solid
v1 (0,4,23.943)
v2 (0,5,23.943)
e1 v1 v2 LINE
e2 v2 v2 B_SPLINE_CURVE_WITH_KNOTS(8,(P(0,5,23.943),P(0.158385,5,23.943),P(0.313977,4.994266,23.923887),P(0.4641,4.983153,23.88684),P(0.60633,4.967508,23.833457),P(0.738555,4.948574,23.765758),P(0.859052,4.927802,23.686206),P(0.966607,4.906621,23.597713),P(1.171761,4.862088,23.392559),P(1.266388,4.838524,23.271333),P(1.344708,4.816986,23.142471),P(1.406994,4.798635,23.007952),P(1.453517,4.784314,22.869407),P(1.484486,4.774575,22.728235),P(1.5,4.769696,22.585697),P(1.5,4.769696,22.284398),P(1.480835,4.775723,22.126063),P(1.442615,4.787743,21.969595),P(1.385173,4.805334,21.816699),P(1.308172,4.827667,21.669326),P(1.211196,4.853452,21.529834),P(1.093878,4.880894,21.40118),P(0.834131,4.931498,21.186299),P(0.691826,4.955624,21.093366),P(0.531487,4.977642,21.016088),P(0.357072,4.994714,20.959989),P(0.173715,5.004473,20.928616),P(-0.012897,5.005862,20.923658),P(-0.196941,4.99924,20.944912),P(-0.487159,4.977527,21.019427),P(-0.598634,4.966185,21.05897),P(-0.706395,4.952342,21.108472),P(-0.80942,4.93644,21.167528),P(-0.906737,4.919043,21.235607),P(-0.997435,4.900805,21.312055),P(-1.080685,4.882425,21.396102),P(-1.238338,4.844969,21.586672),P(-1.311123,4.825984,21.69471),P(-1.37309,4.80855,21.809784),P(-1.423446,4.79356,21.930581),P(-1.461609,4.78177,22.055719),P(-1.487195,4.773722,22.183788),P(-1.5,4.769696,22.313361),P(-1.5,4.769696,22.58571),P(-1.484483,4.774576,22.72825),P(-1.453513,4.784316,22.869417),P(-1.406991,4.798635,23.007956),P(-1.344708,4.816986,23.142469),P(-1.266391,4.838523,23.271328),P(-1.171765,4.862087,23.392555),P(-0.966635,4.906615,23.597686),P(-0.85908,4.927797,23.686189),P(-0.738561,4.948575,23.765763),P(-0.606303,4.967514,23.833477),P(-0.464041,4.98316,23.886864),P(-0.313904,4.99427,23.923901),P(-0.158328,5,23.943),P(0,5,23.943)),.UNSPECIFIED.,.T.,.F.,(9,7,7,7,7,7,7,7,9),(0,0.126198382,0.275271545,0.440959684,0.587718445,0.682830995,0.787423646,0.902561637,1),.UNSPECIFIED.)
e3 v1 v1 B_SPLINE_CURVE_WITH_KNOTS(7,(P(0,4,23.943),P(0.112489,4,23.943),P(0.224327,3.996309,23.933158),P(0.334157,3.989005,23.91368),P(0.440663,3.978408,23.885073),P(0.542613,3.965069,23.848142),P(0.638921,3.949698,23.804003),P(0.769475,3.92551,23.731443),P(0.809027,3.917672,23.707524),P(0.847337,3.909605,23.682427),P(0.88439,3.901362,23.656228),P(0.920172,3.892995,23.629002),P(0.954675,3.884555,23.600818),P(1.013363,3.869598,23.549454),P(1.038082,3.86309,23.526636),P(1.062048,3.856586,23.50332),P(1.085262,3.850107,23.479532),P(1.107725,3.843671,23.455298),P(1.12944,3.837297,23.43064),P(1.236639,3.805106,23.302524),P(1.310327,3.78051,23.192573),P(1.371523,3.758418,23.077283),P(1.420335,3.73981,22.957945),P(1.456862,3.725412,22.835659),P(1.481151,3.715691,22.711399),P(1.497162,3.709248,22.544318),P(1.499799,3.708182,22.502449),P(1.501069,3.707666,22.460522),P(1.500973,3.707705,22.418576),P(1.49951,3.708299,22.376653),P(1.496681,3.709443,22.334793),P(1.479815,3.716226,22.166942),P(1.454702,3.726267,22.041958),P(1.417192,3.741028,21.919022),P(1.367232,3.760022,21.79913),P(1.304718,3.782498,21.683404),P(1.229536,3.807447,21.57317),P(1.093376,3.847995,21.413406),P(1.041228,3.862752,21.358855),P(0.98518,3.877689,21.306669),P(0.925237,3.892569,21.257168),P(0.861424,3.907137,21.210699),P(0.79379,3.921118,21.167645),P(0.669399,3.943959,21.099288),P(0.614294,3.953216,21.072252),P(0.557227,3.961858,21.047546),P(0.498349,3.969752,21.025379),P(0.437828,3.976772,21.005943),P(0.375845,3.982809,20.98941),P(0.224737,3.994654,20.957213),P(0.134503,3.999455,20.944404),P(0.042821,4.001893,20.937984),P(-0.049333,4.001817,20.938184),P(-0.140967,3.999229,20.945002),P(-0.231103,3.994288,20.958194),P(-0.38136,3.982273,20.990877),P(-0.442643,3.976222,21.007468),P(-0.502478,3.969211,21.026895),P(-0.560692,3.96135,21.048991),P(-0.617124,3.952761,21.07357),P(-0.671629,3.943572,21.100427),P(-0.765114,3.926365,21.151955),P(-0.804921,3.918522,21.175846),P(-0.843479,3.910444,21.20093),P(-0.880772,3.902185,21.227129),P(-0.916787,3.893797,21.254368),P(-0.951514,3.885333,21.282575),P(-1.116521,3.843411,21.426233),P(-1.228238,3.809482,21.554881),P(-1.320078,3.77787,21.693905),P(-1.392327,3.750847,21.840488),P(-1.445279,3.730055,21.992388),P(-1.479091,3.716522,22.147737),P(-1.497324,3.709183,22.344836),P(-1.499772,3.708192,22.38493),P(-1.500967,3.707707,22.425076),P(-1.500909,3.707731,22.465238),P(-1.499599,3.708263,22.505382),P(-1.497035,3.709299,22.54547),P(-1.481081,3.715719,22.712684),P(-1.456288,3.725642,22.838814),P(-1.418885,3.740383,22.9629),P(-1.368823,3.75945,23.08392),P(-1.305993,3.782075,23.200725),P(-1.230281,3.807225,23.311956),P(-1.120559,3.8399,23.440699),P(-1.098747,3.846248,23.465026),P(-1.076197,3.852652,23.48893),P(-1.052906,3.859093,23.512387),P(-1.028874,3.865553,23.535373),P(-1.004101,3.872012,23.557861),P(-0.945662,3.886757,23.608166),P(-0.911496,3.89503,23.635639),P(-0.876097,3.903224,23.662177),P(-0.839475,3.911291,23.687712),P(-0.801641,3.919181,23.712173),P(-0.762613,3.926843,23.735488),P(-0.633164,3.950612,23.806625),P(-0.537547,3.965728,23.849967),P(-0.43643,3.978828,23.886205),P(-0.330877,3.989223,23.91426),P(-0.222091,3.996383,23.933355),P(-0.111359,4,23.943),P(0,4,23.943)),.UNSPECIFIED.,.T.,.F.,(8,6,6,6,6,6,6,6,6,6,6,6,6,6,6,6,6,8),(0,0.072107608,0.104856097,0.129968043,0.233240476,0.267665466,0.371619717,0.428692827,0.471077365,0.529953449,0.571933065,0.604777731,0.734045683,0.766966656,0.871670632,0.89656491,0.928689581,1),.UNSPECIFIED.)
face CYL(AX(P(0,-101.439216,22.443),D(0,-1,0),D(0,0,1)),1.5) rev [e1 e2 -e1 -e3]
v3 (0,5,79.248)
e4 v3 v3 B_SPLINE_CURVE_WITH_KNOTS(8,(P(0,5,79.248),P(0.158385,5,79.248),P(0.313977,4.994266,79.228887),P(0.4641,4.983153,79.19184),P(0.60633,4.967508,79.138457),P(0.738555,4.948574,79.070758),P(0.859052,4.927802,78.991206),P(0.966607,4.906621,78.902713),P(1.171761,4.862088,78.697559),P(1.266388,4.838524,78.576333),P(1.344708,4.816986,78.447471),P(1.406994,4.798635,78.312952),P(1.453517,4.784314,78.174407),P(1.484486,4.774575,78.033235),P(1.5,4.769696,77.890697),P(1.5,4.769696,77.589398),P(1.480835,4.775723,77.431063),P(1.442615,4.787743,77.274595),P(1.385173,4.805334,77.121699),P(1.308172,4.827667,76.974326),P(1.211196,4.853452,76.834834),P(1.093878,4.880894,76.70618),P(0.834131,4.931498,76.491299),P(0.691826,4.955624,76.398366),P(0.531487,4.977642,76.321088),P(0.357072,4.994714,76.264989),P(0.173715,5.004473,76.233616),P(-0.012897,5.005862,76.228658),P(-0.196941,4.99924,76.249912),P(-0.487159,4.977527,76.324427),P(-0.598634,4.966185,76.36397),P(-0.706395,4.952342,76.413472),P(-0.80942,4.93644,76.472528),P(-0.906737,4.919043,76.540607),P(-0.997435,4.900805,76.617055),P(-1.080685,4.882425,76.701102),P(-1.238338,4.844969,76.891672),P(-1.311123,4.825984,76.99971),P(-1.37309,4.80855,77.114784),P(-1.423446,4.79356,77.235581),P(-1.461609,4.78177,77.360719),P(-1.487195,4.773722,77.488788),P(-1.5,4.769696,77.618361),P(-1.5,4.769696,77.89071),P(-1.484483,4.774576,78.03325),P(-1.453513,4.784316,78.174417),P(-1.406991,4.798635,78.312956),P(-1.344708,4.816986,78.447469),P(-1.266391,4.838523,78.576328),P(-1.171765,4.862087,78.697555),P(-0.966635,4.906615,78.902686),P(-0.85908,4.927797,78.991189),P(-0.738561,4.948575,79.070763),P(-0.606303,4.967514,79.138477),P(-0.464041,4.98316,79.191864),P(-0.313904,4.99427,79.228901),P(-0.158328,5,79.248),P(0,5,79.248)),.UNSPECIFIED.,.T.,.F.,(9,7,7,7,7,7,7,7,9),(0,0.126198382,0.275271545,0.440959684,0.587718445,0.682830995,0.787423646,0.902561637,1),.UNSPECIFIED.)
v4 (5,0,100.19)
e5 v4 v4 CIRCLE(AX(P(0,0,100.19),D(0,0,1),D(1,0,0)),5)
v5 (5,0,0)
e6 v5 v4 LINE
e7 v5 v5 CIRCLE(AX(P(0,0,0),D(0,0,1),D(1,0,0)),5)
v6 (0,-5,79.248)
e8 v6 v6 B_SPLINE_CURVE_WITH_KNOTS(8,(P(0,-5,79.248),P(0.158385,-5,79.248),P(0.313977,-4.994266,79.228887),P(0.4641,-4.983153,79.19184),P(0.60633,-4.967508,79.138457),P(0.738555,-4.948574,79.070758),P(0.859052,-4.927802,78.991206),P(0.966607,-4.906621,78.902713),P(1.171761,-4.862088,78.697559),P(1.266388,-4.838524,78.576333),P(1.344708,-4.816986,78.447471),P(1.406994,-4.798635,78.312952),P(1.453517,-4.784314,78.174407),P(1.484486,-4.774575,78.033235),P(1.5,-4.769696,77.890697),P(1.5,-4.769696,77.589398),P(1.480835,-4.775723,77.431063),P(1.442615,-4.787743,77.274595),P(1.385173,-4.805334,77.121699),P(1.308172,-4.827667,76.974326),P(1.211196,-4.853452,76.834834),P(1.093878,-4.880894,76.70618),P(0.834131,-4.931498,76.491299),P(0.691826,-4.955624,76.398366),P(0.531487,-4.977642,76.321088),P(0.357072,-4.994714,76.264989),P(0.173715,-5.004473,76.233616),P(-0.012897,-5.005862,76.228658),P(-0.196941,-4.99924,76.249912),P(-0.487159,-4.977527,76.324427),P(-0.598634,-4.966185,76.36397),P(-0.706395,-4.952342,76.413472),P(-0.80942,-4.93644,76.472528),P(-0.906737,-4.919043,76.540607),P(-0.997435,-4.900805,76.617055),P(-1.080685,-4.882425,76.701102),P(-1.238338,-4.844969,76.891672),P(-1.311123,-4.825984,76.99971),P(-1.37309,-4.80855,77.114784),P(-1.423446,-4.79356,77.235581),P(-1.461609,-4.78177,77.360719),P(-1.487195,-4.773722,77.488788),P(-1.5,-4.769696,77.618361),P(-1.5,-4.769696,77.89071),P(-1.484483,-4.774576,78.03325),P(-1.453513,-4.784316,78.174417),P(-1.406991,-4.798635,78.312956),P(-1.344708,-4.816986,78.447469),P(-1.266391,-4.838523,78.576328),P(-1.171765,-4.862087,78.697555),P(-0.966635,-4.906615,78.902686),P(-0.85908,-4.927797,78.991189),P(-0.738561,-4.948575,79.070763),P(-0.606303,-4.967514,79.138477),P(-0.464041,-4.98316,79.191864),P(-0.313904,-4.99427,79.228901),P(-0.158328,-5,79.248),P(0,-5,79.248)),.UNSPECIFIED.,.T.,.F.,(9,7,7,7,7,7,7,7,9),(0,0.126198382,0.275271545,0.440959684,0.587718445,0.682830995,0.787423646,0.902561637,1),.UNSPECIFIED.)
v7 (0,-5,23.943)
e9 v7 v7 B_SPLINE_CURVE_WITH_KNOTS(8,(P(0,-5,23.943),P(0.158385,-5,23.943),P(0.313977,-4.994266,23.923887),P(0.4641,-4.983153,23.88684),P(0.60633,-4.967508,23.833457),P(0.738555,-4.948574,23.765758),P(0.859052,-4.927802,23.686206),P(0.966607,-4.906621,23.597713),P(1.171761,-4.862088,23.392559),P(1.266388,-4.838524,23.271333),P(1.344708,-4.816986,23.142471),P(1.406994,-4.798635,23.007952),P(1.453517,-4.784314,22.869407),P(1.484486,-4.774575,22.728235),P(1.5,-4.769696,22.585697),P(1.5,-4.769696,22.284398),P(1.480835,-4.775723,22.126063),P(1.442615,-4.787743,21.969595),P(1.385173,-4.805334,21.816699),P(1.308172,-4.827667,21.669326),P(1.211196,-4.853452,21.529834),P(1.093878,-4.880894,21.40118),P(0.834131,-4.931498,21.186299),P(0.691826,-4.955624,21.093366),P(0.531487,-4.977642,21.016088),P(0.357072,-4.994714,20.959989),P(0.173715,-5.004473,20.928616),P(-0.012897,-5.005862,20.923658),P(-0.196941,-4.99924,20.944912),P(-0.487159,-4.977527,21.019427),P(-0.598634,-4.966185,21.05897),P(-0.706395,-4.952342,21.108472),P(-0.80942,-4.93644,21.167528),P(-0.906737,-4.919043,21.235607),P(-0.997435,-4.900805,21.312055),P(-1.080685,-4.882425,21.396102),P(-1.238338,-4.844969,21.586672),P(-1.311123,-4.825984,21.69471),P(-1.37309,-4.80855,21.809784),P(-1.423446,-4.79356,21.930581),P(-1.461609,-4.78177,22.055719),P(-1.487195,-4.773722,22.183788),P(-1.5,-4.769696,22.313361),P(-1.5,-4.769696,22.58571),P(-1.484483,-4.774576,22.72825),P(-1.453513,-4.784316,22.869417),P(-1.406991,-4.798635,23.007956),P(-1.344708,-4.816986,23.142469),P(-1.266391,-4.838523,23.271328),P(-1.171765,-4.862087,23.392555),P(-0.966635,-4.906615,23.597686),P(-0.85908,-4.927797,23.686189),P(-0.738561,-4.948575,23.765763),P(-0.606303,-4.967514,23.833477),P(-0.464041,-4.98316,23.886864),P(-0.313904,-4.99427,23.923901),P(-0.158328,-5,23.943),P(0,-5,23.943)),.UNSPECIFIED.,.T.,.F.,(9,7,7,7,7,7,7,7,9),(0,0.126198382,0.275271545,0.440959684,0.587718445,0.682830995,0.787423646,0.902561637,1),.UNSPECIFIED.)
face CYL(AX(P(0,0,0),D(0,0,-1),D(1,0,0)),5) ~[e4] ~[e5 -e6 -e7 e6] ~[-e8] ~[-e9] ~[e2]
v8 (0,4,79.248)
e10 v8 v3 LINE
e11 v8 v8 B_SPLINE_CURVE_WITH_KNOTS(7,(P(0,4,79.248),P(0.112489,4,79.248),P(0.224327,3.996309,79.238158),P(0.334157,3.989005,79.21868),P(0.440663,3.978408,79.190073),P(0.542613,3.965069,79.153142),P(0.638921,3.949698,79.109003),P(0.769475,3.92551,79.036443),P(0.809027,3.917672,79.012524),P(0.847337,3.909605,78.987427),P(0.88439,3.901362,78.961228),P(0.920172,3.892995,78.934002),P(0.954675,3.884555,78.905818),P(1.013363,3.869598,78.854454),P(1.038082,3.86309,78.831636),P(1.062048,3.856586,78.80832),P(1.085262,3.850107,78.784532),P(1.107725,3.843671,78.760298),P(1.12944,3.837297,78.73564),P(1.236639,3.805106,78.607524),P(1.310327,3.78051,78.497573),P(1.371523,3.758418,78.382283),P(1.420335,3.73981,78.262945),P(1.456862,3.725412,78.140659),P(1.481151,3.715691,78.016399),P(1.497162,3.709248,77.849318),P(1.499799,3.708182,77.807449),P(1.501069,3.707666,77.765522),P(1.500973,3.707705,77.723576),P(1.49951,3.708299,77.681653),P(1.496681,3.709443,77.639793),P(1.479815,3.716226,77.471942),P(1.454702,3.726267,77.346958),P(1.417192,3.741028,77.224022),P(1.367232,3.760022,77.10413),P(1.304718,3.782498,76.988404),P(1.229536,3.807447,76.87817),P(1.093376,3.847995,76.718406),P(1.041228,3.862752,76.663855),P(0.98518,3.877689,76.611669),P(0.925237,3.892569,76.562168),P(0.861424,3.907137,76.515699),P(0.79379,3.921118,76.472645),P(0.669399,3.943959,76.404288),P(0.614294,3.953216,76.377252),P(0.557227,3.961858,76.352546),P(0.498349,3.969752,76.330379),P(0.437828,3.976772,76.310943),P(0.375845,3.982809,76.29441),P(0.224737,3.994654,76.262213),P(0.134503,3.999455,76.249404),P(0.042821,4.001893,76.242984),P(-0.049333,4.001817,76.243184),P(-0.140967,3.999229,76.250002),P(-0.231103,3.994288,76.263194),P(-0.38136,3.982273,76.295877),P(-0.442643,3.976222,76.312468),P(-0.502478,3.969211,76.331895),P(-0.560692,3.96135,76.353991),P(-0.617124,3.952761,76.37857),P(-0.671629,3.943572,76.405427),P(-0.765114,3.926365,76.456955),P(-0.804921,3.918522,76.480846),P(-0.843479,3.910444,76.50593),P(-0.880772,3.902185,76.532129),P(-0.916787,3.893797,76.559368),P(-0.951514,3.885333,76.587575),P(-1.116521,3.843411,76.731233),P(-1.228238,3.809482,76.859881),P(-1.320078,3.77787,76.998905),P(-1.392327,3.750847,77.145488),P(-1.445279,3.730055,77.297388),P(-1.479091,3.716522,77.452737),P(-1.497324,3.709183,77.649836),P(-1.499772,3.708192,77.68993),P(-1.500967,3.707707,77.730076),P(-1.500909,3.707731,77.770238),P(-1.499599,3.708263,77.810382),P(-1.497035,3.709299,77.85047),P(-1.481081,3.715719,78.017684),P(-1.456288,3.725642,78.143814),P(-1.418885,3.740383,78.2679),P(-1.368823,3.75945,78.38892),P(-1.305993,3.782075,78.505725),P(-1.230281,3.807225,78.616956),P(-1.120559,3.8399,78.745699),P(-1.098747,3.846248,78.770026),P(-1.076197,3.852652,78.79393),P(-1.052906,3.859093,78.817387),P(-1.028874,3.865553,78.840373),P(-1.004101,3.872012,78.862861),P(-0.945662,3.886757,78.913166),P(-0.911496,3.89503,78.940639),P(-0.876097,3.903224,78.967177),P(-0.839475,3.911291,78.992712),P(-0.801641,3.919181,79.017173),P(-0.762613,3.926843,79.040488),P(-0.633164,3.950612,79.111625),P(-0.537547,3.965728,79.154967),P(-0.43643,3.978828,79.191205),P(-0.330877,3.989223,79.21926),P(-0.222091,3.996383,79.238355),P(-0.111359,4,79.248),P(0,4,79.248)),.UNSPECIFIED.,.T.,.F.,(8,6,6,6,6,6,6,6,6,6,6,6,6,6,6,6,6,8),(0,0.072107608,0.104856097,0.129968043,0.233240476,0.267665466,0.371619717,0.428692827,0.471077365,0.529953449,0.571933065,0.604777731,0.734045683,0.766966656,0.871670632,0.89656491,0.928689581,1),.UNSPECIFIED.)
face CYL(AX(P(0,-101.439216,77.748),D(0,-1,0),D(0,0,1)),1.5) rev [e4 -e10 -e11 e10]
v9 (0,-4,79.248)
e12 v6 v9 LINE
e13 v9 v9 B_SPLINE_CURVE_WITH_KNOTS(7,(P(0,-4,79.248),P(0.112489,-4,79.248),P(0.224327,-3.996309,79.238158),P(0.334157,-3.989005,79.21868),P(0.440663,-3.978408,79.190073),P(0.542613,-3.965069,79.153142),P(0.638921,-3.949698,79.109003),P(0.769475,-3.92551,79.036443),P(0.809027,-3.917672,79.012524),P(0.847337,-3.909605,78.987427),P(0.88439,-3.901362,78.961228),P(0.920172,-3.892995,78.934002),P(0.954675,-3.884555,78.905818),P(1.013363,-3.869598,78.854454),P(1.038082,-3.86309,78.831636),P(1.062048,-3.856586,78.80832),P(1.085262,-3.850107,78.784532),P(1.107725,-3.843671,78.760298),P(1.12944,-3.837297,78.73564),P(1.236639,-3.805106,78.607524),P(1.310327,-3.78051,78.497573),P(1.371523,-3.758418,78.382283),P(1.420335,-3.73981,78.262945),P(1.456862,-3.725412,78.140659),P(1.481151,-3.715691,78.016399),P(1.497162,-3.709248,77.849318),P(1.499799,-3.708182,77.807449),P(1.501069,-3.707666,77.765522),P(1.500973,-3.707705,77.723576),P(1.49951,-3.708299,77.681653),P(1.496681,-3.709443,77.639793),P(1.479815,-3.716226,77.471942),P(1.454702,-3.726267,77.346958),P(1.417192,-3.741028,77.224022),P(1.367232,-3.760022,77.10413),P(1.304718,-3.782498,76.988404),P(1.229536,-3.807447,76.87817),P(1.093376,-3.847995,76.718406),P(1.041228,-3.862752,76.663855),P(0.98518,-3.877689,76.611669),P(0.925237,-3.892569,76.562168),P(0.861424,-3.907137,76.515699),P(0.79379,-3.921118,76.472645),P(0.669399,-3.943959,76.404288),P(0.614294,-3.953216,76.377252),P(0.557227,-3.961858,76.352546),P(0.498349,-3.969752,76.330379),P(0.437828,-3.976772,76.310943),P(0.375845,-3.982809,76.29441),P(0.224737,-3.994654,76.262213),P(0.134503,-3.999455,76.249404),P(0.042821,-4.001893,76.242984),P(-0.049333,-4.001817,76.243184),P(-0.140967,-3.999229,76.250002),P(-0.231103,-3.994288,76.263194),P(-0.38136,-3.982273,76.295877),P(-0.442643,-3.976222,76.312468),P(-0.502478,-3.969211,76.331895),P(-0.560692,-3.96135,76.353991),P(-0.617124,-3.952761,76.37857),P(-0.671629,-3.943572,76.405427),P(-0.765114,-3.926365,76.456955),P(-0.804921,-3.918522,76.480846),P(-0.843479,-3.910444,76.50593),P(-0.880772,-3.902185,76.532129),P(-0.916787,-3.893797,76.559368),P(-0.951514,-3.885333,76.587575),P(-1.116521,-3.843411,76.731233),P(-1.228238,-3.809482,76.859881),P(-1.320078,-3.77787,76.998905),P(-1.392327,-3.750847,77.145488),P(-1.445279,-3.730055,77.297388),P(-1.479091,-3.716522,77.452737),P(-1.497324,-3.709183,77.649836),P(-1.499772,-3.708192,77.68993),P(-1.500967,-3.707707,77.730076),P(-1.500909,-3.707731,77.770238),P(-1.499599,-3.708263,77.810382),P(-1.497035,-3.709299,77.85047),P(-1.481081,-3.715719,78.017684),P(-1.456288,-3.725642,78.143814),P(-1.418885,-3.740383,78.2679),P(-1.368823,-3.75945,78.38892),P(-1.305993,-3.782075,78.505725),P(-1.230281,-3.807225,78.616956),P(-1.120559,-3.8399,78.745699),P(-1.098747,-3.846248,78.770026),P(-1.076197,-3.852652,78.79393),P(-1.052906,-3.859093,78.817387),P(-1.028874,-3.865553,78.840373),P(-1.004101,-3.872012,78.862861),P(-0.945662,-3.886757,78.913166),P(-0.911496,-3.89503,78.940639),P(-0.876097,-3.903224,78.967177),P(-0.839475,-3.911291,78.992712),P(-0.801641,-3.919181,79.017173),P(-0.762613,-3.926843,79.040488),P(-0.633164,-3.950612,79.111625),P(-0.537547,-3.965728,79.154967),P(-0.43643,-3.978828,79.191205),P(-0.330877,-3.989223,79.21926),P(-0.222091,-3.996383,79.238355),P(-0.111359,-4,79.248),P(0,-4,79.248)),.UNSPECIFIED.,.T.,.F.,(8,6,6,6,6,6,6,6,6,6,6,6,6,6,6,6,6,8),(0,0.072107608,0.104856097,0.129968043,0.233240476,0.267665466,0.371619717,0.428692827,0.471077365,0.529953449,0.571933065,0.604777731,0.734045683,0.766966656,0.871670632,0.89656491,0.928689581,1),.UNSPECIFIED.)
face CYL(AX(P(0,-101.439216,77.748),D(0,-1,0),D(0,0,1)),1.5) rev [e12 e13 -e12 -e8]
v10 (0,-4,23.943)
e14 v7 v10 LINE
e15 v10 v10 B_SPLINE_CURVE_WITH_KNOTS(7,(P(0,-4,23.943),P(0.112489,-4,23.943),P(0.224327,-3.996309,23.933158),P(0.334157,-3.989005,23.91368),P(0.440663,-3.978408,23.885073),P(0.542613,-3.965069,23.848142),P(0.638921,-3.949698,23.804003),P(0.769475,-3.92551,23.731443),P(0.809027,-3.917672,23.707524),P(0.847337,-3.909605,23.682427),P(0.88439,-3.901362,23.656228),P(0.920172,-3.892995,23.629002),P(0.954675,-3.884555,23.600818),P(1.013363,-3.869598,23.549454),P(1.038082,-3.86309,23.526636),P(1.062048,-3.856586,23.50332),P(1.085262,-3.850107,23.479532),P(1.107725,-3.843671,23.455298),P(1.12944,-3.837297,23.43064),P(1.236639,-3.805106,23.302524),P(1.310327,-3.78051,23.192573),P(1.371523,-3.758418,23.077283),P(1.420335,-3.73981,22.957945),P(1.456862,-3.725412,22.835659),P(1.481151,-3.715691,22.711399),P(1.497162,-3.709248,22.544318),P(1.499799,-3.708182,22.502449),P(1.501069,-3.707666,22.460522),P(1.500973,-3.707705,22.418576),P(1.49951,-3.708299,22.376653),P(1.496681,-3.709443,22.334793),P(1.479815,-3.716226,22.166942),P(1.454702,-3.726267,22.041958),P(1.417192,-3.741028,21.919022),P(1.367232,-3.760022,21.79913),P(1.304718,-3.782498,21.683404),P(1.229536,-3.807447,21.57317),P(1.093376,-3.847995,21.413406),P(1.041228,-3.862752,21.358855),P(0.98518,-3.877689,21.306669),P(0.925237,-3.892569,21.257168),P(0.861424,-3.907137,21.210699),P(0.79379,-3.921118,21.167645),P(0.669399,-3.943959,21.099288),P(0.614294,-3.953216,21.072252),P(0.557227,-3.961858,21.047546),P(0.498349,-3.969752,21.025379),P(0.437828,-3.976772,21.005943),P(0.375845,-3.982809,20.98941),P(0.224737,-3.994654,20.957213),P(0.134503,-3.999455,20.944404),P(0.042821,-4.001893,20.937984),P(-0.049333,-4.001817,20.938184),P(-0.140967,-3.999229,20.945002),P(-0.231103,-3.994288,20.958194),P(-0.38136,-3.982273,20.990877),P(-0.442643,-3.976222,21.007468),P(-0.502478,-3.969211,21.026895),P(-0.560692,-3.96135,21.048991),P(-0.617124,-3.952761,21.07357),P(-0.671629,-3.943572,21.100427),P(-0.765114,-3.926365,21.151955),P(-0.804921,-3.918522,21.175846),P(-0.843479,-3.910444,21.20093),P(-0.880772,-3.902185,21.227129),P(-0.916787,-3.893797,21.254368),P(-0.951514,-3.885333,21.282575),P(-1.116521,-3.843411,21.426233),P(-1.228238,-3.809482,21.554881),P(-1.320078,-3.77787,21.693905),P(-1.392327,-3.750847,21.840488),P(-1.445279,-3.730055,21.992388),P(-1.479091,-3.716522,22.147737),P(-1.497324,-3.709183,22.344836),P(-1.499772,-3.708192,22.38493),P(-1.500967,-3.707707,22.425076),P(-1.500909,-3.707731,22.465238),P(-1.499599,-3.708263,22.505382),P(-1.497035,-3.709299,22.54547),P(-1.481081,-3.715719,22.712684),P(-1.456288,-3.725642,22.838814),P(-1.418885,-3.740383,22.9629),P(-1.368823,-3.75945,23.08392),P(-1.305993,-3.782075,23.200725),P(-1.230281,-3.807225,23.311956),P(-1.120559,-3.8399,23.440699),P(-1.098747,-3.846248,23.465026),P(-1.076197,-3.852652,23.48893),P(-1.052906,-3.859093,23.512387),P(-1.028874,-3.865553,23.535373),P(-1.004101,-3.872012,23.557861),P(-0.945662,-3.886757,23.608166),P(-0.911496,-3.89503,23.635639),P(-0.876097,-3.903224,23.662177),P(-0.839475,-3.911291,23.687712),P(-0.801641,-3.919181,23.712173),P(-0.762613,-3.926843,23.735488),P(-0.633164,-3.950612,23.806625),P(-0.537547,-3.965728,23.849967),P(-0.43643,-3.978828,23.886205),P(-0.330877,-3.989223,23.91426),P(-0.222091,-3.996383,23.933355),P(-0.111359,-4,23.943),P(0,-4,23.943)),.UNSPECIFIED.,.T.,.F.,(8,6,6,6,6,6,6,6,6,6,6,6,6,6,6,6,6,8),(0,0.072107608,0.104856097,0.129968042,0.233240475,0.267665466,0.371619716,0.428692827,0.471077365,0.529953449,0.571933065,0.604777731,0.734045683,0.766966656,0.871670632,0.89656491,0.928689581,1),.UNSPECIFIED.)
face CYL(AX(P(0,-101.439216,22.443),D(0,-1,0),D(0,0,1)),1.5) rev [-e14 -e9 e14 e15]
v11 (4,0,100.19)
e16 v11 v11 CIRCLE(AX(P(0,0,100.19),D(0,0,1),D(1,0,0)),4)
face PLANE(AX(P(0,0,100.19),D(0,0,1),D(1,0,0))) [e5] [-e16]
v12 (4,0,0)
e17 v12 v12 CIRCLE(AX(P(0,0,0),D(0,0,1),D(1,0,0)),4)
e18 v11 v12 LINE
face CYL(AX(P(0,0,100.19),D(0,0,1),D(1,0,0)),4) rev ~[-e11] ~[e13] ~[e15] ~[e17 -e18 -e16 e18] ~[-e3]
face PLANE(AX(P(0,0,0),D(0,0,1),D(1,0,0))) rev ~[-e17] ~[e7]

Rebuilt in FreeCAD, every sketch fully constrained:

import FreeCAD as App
import Part
import Sketcher
Q = App.Units.Quantity

doc = App.newDocument("Part")
body = doc.addObject("PartDesign::Body", "Body")

# Sketch on XY plane
sketch1 = body.newObject("Sketcher::SketchObject", "Sketch")
sketch1.AttachmentSupport = (doc.getObject("XY_Plane"), [""])
sketch1.MapMode = "FlatFace"
sketch1.addGeometry(Part.Circle(App.Vector(0, 0, 0), App.Vector(0, 0, 1), 5), False)
sketch1.addConstraint([
    Sketcher.Constraint("Coincident", 0, 3, -1, 1),
    Sketcher.Constraint("Diameter", 0, Q("10 mm")),
])
pad1 = body.newObject("PartDesign::Pad", "Pad")
pad1.Profile = sketch1
pad1.Length = 100.19

# Sketch on XY plane
sketch2 = body.newObject("Sketcher::SketchObject", "Sketch001")
sketch2.AttachmentSupport = (doc.getObject("XY_Plane"), [""])
sketch2.MapMode = "FlatFace"
sketch2.AttachmentOffset = App.Placement(App.Vector(0, 0, 100.19), App.Rotation())
sketch2.addGeometry(Part.Circle(App.Vector(0, 0, 0), App.Vector(0, 0, 1), 4), False)
sketch2.addConstraint([
    Sketcher.Constraint("Coincident", 0, 3, -1, 1),
    Sketcher.Constraint("Diameter", 0, Q("8 mm")),
])
pocket1 = body.newObject("PartDesign::Pocket", "Pocket")
pocket1.Profile = sketch2
pocket1.Type = "UpToFirst"

# Sketch on XZ plane
sketch3 = body.newObject("Sketcher::SketchObject", "Sketch002")
sketch3.AttachmentSupport = (doc.getObject("XZ_Plane"), [""])
sketch3.MapMode = "FlatFace"
sketch3.addGeometry([
    Part.Circle(App.Vector(0, 22.4, 0), App.Vector(0, 0, 1), 1.5),
    Part.Circle(App.Vector(0, 77.7, 0), App.Vector(0, 0, 1), 1.5),
], False)
sketch3.addConstraint([
    Sketcher.Constraint("Equal", 0, 1),
    Sketcher.Constraint("PointOnObject", 0, 3, -2),
    Sketcher.Constraint("PointOnObject", 1, 3, -2),
    Sketcher.Constraint("Diameter", 0, Q("3 mm")),
    Sketcher.Constraint("DistanceY", -1, 1, 0, 3, Q("22.443 mm")),
    Sketcher.Constraint("DistanceY", -1, 1, 1, 3, Q("77.748 mm")),
])
pocket2 = body.newObject("PartDesign::Pocket", "Pocket001")
pocket2.Profile = sketch3
pocket2.Type = "ThroughAll"
pocket2.Midplane = True

doc.recompute()
